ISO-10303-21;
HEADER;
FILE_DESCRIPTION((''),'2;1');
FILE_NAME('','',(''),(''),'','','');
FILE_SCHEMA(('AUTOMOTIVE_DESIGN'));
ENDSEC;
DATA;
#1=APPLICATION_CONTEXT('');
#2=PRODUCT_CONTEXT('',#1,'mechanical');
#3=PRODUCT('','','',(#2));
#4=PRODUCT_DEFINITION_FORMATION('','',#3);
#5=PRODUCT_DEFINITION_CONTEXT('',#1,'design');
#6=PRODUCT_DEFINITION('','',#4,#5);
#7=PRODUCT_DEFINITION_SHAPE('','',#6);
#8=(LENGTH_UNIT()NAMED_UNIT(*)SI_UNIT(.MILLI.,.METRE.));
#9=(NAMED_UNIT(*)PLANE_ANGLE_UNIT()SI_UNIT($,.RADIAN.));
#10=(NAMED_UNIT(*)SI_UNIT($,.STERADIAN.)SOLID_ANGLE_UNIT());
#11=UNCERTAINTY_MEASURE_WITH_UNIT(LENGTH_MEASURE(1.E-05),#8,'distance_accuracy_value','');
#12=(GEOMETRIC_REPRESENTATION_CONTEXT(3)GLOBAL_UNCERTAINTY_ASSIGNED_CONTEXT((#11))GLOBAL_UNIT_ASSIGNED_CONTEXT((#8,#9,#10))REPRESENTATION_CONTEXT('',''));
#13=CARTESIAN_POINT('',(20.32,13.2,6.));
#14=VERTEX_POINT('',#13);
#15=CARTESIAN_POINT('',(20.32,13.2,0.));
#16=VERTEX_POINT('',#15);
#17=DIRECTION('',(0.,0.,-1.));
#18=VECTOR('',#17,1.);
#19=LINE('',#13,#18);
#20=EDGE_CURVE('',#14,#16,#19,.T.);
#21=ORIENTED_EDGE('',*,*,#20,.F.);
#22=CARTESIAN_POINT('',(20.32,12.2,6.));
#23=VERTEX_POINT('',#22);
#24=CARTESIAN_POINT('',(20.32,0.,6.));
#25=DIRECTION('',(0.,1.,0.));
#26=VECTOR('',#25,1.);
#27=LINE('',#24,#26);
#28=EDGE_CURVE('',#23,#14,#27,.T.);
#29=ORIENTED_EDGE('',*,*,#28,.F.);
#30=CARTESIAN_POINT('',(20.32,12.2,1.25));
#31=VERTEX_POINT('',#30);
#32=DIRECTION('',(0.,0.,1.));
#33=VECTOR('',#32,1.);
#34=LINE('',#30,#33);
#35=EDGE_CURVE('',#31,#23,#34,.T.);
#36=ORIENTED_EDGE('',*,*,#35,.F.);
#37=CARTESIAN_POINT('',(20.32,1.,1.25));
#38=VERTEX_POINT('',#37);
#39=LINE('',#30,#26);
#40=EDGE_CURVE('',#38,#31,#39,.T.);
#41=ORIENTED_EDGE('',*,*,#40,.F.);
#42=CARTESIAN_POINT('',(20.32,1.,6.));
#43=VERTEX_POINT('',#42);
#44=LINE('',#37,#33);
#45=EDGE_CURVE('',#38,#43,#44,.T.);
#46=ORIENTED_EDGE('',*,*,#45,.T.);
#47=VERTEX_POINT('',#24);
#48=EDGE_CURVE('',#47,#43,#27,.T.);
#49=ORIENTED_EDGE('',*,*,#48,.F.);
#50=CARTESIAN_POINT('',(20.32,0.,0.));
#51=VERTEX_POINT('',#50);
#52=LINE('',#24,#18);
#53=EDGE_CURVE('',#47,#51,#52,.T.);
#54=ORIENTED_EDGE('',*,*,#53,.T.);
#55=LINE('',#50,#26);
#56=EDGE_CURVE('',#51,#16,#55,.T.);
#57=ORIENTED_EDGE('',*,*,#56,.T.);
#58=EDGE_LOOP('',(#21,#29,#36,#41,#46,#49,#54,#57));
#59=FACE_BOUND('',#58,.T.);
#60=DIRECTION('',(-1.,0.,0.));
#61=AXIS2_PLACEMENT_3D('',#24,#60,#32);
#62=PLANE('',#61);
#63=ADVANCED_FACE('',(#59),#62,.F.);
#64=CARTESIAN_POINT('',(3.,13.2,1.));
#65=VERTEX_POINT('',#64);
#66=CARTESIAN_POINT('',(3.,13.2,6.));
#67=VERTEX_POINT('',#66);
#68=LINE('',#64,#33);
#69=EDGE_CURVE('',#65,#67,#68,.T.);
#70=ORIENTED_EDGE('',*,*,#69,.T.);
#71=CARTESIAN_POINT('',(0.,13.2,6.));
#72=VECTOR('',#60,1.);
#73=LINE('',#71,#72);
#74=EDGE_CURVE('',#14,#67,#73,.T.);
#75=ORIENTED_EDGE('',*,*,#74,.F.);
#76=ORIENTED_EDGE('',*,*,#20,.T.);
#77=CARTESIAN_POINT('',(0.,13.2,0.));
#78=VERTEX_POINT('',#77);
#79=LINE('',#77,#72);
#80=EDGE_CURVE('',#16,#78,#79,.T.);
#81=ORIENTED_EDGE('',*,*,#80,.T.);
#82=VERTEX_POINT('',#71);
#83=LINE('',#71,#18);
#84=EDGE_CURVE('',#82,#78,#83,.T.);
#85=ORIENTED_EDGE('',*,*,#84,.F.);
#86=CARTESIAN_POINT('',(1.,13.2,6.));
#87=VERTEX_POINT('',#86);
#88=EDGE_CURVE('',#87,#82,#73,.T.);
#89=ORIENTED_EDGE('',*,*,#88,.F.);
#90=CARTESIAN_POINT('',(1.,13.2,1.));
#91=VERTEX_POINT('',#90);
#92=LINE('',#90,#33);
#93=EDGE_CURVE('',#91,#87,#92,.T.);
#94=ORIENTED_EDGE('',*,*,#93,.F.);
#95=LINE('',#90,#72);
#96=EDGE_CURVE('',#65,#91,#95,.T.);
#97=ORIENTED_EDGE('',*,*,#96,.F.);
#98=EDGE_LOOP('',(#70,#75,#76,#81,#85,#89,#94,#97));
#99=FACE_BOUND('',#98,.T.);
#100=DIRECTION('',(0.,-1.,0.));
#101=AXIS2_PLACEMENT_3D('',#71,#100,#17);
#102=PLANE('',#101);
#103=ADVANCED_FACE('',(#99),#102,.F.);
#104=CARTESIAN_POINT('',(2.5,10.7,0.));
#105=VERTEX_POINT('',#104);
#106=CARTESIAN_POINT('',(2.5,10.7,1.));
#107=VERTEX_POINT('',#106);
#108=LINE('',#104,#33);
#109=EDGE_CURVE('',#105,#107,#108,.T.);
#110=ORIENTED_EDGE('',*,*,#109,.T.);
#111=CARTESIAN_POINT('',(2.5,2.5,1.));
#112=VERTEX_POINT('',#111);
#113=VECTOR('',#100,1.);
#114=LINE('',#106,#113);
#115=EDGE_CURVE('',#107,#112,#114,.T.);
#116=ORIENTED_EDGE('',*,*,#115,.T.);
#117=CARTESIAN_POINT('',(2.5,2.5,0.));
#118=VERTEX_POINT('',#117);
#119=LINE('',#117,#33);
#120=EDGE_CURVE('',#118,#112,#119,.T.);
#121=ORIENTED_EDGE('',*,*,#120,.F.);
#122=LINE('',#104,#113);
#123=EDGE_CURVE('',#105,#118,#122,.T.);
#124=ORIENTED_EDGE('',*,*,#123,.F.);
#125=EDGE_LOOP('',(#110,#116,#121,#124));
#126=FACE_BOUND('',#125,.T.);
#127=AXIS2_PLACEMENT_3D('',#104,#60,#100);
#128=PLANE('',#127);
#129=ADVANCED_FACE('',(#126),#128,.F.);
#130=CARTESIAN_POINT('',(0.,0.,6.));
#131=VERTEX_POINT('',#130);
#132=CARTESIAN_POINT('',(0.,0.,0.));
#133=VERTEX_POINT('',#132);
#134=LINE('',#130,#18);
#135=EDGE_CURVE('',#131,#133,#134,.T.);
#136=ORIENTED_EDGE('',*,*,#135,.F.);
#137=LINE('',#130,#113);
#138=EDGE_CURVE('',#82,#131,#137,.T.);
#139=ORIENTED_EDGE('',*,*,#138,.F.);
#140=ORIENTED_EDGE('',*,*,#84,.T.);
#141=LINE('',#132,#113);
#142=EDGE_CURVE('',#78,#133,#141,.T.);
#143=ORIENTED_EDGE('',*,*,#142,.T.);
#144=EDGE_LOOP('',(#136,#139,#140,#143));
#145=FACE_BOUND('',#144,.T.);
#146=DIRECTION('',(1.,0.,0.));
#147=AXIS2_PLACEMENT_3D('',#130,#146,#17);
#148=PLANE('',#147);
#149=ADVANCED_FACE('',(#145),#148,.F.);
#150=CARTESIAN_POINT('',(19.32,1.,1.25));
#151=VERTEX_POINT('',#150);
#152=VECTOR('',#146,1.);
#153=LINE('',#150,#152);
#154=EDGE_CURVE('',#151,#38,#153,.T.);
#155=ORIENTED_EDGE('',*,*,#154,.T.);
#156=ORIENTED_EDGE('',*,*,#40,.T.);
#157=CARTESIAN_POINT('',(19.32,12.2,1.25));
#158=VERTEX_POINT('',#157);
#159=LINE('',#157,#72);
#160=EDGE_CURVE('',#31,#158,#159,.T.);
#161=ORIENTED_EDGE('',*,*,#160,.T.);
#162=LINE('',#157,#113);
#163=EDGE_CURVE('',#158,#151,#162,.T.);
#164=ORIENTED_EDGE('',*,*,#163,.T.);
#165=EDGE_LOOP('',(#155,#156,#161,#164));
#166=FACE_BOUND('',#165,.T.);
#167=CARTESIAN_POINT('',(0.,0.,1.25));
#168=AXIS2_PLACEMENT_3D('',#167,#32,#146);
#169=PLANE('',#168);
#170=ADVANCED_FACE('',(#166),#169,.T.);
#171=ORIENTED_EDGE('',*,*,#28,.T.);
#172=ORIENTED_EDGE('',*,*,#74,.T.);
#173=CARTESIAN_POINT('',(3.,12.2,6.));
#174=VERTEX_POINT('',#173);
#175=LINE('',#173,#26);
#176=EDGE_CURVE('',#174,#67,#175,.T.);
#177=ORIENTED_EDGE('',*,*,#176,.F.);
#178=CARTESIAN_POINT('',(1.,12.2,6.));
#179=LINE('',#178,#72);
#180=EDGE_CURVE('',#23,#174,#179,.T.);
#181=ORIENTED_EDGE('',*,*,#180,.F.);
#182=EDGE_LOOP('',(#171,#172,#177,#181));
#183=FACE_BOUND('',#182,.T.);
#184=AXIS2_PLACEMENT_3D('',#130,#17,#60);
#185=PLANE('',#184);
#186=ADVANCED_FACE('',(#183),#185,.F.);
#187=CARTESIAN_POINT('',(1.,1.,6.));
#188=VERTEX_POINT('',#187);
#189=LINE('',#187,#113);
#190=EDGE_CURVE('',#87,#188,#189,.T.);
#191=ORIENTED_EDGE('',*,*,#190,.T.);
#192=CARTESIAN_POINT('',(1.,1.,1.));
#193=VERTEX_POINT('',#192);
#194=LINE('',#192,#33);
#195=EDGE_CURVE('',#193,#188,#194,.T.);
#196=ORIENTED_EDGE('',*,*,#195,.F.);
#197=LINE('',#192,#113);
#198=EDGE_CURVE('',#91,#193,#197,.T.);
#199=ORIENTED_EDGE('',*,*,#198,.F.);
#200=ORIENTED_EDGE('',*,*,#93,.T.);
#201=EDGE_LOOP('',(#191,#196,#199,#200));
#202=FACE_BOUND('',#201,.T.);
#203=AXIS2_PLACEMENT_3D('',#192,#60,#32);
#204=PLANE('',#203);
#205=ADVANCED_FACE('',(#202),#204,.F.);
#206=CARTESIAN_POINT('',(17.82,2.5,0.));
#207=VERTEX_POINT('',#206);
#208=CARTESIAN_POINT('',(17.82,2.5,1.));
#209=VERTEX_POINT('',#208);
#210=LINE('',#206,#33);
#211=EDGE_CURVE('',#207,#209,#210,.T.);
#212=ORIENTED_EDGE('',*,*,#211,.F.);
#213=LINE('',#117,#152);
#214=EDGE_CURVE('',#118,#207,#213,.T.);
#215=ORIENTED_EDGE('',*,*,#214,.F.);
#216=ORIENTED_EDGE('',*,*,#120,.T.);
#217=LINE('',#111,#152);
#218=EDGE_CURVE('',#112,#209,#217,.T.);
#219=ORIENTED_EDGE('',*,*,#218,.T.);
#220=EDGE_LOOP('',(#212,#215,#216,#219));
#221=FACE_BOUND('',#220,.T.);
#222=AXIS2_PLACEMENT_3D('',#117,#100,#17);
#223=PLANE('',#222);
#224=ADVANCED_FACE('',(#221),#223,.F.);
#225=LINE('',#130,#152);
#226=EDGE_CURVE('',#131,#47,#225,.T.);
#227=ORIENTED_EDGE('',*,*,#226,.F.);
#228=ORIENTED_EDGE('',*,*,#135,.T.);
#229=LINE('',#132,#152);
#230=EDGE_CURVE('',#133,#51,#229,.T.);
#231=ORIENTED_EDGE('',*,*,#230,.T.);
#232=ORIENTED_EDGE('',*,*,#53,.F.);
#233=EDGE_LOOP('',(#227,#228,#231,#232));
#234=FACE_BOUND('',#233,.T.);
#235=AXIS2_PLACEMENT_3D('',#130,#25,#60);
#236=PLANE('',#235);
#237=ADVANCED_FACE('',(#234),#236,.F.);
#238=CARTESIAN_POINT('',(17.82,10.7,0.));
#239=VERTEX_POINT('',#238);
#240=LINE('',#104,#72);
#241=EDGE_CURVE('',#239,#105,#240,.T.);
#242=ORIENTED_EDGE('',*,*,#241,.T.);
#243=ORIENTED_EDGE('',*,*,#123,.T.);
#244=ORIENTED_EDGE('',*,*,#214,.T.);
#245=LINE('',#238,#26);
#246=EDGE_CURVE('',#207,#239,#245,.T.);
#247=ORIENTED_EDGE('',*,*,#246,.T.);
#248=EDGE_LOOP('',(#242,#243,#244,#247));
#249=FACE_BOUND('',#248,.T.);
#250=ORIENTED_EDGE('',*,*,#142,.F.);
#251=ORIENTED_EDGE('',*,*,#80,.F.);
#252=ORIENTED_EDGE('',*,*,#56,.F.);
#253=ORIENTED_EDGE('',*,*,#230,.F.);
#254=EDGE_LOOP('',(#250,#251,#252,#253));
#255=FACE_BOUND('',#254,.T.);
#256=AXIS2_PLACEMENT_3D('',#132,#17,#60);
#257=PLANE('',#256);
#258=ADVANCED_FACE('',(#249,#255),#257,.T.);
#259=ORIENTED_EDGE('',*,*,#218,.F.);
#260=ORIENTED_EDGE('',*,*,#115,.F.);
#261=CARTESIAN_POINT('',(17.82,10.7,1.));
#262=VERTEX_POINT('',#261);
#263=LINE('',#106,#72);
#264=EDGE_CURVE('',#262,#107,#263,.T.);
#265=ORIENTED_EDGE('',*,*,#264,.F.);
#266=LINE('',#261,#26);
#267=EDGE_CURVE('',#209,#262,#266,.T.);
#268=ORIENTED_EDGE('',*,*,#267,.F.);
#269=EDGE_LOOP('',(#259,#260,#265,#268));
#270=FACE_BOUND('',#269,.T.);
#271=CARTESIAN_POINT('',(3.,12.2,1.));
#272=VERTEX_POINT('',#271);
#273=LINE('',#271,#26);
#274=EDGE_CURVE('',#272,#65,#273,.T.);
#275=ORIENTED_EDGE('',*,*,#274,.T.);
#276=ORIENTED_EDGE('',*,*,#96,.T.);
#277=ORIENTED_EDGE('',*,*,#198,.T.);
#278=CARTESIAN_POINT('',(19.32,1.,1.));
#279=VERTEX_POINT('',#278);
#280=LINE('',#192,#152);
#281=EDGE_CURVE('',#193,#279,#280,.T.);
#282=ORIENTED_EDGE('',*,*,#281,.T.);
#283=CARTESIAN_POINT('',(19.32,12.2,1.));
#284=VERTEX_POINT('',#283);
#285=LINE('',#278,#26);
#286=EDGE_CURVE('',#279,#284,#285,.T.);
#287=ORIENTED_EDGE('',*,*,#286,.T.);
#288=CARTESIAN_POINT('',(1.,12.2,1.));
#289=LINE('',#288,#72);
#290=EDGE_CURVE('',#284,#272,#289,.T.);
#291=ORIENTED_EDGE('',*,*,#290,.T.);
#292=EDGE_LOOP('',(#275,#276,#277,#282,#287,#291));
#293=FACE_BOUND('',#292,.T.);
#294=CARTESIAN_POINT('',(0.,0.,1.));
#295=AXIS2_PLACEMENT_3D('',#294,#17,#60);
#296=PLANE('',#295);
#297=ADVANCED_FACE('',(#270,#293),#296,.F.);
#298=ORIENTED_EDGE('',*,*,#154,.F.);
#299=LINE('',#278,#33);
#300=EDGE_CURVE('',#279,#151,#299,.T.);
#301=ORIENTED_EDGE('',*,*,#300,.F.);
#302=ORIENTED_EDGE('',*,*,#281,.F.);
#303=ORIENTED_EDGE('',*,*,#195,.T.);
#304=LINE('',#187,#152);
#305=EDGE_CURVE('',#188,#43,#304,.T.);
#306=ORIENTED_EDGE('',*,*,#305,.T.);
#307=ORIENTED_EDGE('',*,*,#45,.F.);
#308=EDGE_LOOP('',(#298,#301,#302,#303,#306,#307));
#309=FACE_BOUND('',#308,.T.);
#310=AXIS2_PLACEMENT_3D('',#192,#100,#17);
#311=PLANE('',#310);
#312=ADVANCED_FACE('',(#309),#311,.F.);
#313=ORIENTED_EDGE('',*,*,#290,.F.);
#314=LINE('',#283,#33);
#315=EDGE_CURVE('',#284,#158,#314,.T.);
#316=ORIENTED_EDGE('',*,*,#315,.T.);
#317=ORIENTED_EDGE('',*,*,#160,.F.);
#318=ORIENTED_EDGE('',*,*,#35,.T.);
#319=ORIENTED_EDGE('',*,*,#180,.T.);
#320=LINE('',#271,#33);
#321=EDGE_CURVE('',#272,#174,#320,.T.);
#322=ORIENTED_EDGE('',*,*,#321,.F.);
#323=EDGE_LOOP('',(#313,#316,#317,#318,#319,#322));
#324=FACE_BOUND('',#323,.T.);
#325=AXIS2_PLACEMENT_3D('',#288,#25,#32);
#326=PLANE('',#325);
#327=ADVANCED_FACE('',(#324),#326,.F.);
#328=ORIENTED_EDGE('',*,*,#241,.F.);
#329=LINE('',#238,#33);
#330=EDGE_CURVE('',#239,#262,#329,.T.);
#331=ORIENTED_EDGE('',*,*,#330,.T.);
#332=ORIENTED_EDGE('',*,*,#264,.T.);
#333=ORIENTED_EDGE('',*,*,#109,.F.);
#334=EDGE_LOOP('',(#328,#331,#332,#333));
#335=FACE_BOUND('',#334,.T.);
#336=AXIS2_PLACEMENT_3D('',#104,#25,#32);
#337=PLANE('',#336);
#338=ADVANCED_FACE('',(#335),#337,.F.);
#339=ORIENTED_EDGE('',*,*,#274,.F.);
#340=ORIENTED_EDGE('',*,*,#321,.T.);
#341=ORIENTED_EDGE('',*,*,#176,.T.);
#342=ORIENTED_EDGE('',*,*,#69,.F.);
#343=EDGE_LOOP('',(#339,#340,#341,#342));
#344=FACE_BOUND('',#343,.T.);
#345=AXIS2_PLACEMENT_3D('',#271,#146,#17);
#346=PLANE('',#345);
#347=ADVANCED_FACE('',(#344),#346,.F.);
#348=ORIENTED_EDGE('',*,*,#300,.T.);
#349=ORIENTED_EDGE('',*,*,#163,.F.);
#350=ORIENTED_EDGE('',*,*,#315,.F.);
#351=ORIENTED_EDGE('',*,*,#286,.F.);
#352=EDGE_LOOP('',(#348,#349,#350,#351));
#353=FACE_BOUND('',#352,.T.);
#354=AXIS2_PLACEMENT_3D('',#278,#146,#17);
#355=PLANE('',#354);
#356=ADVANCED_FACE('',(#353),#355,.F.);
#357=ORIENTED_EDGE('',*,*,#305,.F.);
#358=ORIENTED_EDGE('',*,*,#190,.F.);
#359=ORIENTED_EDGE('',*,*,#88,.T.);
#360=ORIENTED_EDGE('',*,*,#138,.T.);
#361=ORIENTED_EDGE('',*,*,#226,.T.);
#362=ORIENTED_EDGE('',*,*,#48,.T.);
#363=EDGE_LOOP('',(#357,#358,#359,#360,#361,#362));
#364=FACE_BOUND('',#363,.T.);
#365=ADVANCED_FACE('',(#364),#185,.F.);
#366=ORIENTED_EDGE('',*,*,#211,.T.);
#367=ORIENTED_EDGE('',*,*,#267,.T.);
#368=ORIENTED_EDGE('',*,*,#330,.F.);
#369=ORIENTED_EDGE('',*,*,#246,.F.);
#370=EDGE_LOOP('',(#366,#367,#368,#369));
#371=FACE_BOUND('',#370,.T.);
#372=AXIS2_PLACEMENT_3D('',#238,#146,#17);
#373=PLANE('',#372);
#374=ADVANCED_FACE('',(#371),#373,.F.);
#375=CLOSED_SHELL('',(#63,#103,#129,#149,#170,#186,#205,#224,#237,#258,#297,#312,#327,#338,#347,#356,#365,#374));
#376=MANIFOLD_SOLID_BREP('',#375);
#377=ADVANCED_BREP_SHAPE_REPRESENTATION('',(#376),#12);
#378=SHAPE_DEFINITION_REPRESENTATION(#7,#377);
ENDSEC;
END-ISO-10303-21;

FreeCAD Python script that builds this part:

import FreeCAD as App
import Part
import Sketcher
Q = App.Units.Quantity


def add_polygon(sketch, points):
    """Adds a closed chain of lines whose ends are joined by coincident constraints."""
    first, n = sketch.GeometryCount, len(points)
    for a, b in zip(points, points[1:] + points[:1]):
        sketch.addGeometry(Part.LineSegment(App.Vector(*a, 0), App.Vector(*b, 0)), False)
    for i in range(n):
        sketch.addConstraint(Sketcher.Constraint("Coincident", first + i, 2, first + (i + 1) % n, 1))

doc = App.newDocument("Part")
body = doc.addObject("PartDesign::Body", "Body")

# Sketch on XY plane
sketch1 = body.newObject("Sketcher::SketchObject", "Sketch")
sketch1.AttachmentSupport = (doc.getObject("XY_Plane"), [""])
sketch1.MapMode = "FlatFace"
add_polygon(sketch1, [(0, 13.2), (0, 0), (20.32, 0), (20.32, 13.2)])  # lines 0-3
sketch1.addConstraint([
    Sketcher.Constraint("Vertical", 0),
    Sketcher.Constraint("Horizontal", 1),
    Sketcher.Constraint("Vertical", 2),
    Sketcher.Constraint("Horizontal", 3),
    Sketcher.Constraint("Coincident", 0, 2, -1, 1),
    Sketcher.Constraint("DistanceY", 0, 2, 0, 1, Q("13.2 mm")),
    Sketcher.Constraint("DistanceX", 1, 1, 1, 2, Q("20.32 mm")),
])
pad1 = body.newObject("PartDesign::Pad", "Pad")
pad1.Profile = sketch1
pad1.Length = 6

# Sketch on XY plane
sketch2 = body.newObject("Sketcher::SketchObject", "Sketch001")
sketch2.AttachmentSupport = (doc.getObject("XY_Plane"), [""])
sketch2.MapMode = "FlatFace"
sketch2.AttachmentOffset = App.Placement(App.Vector(0, 0, 6), App.Rotation())
add_polygon(sketch2, [(1, 12.2), (1, 1), (19.32, 1), (19.32, 12.2)])  # lines 0-3
sketch2.addConstraint([
    Sketcher.Constraint("Vertical", 0),
    Sketcher.Constraint("Horizontal", 1),
    Sketcher.Constraint("Vertical", 2),
    Sketcher.Constraint("Horizontal", 3),
    Sketcher.Constraint("DistanceY", 0, 2, 0, 1, Q("11.2 mm")),
    Sketcher.Constraint("DistanceX", -1, 1, 0, 2, Q("1 mm")),
    Sketcher.Constraint("DistanceY", -1, 1, 0, 2, Q("1 mm")),
    Sketcher.Constraint("DistanceX", 1, 1, 1, 2, Q("18.32 mm")),
])
pocket1 = body.newObject("PartDesign::Pocket", "Pocket")
pocket1.Profile = sketch2
pocket1.Length = 5

# Sketch on XY plane
sketch3 = body.newObject("Sketcher::SketchObject", "Sketch002")
sketch3.AttachmentSupport = (doc.getObject("XY_Plane"), [""])
sketch3.MapMode = "FlatFace"
sketch3.AttachmentOffset = App.Placement(App.Vector(0, 0, 6), App.Rotation())
add_polygon(sketch3, [(1, 13.2), (1, 12.2), (3, 12.2), (3, 13.2)])  # lines 0-3
sketch3.addConstraint([
    Sketcher.Constraint("Vertical", 0),
    Sketcher.Constraint("Horizontal", 1),
    Sketcher.Constraint("Vertical", 2),
    Sketcher.Constraint("Horizontal", 3),
    Sketcher.Constraint("DistanceX", 1, 1, 1, 2, Q("2 mm")),
    Sketcher.Constraint("DistanceY", 0, 2, 0, 1, Q("1 mm")),
    Sketcher.Constraint("DistanceX", -1, 1, 0, 2, Q("1 mm")),
    Sketcher.Constraint("DistanceY", -1, 1, 0, 2, Q("12.2 mm")),
])
pocket2 = body.newObject("PartDesign::Pocket", "Pocket001")
pocket2.Profile = sketch3
pocket2.Length = 5

# Sketch on XY plane
sketch4 = body.newObject("Sketcher::SketchObject", "Sketch003")
sketch4.AttachmentSupport = (doc.getObject("XY_Plane"), [""])
sketch4.MapMode = "FlatFace"
sketch4.AttachmentOffset = App.Placement(App.Vector(0, 0, 1), App.Rotation())
add_polygon(sketch4, [(2.5, 10.7), (2.5, 2.5), (17.82, 2.5), (17.82, 10.7)])  # lines 0-3
sketch4.addConstraint([
    Sketcher.Constraint("Vertical", 0),
    Sketcher.Constraint("Horizontal", 1),
    Sketcher.Constraint("Vertical", 2),
    Sketcher.Constraint("Horizontal", 3),
    Sketcher.Constraint("DistanceY", 0, 2, 0, 1, Q("8.2 mm")),
    Sketcher.Constraint("DistanceX", 1, 1, 1, 2, Q("15.32 mm")),
    Sketcher.Constraint("DistanceX", -1, 1, 0, 2, Q("2.5 mm")),
    Sketcher.Constraint("DistanceY", -1, 1, 0, 2, Q("2.5 mm")),
])
pocket3 = body.newObject("PartDesign::Pocket", "Pocket002")
pocket3.Profile = sketch4
pocket3.Type = "ThroughAll"

# Sketch on XY plane
sketch5 = body.newObject("Sketcher::SketchObject", "Sketch004")
sketch5.AttachmentSupport = (doc.getObject("XY_Plane"), [""])
sketch5.MapMode = "FlatFace"
sketch5.AttachmentOffset = App.Placement(App.Vector(0, 0, 6), App.Rotation())
add_polygon(sketch5, [(19.32, 12.2), (19.32, 1), (20.32, 1), (20.32, 12.2)])  # lines 0-3
sketch5.addConstraint([
    Sketcher.Constraint("Vertical", 0),
    Sketcher.Constraint("Horizontal", 1),
    Sketcher.Constraint("Vertical", 2),
    Sketcher.Constraint("Horizontal", 3),
    Sketcher.Constraint("DistanceX", 1, 1, 1, 2, Q("1 mm")),
    Sketcher.Constraint("DistanceY", 0, 2, 0, 1, Q("11.2 mm")),
    Sketcher.Constraint("DistanceY", -1, 1, 0, 2, Q("1 mm")),
    Sketcher.Constraint("DistanceX", -1, 1, 0, 2, Q("19.32 mm")),
])
pocket4 = body.newObject("PartDesign::Pocket", "Pocket003")
pocket4.Profile = sketch5
pocket4.Length = 4.75

doc.recompute()
